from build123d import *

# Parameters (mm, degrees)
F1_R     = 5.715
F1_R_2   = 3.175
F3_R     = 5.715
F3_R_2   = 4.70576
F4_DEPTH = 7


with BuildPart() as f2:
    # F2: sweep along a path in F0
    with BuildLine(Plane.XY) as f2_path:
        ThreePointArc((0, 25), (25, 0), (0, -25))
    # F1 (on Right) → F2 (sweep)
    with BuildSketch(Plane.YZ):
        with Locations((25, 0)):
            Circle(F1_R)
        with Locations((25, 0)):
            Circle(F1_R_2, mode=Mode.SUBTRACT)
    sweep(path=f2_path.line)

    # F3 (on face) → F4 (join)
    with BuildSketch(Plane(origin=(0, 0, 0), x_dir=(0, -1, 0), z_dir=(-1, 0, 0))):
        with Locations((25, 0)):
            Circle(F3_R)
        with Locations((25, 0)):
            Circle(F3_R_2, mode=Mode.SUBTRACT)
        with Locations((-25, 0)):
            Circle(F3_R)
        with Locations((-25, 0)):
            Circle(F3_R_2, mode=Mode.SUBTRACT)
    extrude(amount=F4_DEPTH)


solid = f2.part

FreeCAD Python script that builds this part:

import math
import FreeCAD as App
import Part
import Sketcher

doc = App.newDocument("Part")
params = doc.addObject("Spreadsheet::Sheet", "Params")
for row, (alias, value) in enumerate([
    ("sketch1_diameter", "11.43 mm"),
    ("sketch1_diameter2", "6.35 mm"),
    ("sketch2_radius", "25 mm"),
    ("sketch3_diameter", "11.43 mm"),
    ("pad1_length", "7 mm"),
], start=1):
    params.set(f"A{row}", alias)
    params.set(f"B{row}", "=" + value)
    params.setAlias(f"B{row}", alias)

body = doc.addObject("PartDesign::Body", "Body")

# Sketch on YZ plane
sketch1 = doc.addObject("Sketcher::SketchObject", "Sketch")
body.addObject(sketch1)
sketch1.AttachmentSupport = (doc.YZ_Plane, [""])
sketch1.MapMode = "FlatFace"
sketch1.addGeometry(Part.Circle(App.Vector(25, 0, 0), App.Vector(0, 0, 1), 5.715), False)
sketch1.addGeometry(Part.Circle(App.Vector(25, 0, 0), App.Vector(0, 0, 1), 3.175), False)
sketch1.addConstraint(Sketcher.Constraint("Coincident", 1, 3, 0, 3))
sketch1.addConstraint(Sketcher.Constraint("PointOnObject", 0, 3, -1))
sketch1.addConstraint(Sketcher.Constraint("Diameter", 0, 11.43))
sketch1.addConstraint(Sketcher.Constraint("Diameter", 1, 6.35))
sketch1.addConstraint(Sketcher.Constraint("DistanceX", -1, 1, 0, 3, 25.0))
sketch1.setExpression("Constraints[2]", "Params.sketch1_diameter")
sketch1.setExpression("Constraints[3]", "Params.sketch1_diameter2")

# Sketch on XY plane
sketch2 = doc.addObject("Sketcher::SketchObject", "Sketch001")
body.addObject(sketch2)
sketch2.AttachmentSupport = (doc.XY_Plane, [""])
sketch2.MapMode = "FlatFace"
sketch2.addGeometry(Part.ArcOfCircle(Part.Circle(App.Vector(0, 0, 0), App.Vector(0, 0, 1), 25), math.radians(-90), math.radians(90)), False)
sketch2.addConstraint(Sketcher.Constraint("Coincident", 0, 3, -1, 1))
sketch2.addConstraint(Sketcher.Constraint("PointOnObject", 0, 1, -2))
sketch2.addConstraint(Sketcher.Constraint("PointOnObject", 0, 2, -2))
sketch2.addConstraint(Sketcher.Constraint("Radius", 0, 25.0))
sketch2.setExpression("Constraints[3]", "Params.sketch2_radius")
doc.recompute()

additivepipe = doc.addObject("PartDesign::AdditivePipe", "AdditivePipe")
body.addObject(additivepipe)
additivepipe.Profile = sketch1
additivepipe.Spine = (sketch2, ["Edge1"])

# Sketch on YZ plane
sketch3 = doc.addObject("Sketcher::SketchObject", "Sketch002")
body.addObject(sketch3)
sketch3.AttachmentSupport = (doc.YZ_Plane, [""])
sketch3.MapMode = "FlatFace"
sketch3.addGeometry(Part.Circle(App.Vector(-25, 0, 0), App.Vector(0, 0, 1), 5.715), False)
sketch3.addGeometry(Part.Circle(App.Vector(-25, 0, 0), App.Vector(0, 0, 1), 4.70576), False)
sketch3.addGeometry(Part.Circle(App.Vector(25, 0, 0), App.Vector(0, 0, 1), 5.715), False)
sketch3.addGeometry(Part.Circle(App.Vector(25, 0, 0), App.Vector(0, 0, 1), 4.70576), False)
sketch3.addConstraint(Sketcher.Constraint("Coincident", 1, 3, 0, 3))
sketch3.addConstraint(Sketcher.Constraint("Coincident", 3, 3, 2, 3))
sketch3.addConstraint(Sketcher.Constraint("Equal", 0, 2))
sketch3.addConstraint(Sketcher.Constraint("Equal", 1, 3))
sketch3.addConstraint(Sketcher.Constraint("Symmetric", 0, 3, 2, 3, -1, 1))
sketch3.addConstraint(Sketcher.Constraint("PointOnObject", 0, 3, -1))
sketch3.addConstraint(Sketcher.Constraint("Diameter", 0, 11.43))
sketch3.addConstraint(Sketcher.Constraint("DistanceX", 0, 3, -1, 1, 25.0))
sketch3.addConstraint(Sketcher.Constraint("Diameter", 1, 9.41152))
sketch3.setExpression("Constraints[6]", "Params.sketch3_diameter")
pad1 = doc.addObject("PartDesign::Pad", "Pad")
body.addObject(pad1)
pad1.Profile = sketch3
pad1.setExpression("Length", "Params.pad1_length")
pad1.Reversed = True

doc.recompute()
